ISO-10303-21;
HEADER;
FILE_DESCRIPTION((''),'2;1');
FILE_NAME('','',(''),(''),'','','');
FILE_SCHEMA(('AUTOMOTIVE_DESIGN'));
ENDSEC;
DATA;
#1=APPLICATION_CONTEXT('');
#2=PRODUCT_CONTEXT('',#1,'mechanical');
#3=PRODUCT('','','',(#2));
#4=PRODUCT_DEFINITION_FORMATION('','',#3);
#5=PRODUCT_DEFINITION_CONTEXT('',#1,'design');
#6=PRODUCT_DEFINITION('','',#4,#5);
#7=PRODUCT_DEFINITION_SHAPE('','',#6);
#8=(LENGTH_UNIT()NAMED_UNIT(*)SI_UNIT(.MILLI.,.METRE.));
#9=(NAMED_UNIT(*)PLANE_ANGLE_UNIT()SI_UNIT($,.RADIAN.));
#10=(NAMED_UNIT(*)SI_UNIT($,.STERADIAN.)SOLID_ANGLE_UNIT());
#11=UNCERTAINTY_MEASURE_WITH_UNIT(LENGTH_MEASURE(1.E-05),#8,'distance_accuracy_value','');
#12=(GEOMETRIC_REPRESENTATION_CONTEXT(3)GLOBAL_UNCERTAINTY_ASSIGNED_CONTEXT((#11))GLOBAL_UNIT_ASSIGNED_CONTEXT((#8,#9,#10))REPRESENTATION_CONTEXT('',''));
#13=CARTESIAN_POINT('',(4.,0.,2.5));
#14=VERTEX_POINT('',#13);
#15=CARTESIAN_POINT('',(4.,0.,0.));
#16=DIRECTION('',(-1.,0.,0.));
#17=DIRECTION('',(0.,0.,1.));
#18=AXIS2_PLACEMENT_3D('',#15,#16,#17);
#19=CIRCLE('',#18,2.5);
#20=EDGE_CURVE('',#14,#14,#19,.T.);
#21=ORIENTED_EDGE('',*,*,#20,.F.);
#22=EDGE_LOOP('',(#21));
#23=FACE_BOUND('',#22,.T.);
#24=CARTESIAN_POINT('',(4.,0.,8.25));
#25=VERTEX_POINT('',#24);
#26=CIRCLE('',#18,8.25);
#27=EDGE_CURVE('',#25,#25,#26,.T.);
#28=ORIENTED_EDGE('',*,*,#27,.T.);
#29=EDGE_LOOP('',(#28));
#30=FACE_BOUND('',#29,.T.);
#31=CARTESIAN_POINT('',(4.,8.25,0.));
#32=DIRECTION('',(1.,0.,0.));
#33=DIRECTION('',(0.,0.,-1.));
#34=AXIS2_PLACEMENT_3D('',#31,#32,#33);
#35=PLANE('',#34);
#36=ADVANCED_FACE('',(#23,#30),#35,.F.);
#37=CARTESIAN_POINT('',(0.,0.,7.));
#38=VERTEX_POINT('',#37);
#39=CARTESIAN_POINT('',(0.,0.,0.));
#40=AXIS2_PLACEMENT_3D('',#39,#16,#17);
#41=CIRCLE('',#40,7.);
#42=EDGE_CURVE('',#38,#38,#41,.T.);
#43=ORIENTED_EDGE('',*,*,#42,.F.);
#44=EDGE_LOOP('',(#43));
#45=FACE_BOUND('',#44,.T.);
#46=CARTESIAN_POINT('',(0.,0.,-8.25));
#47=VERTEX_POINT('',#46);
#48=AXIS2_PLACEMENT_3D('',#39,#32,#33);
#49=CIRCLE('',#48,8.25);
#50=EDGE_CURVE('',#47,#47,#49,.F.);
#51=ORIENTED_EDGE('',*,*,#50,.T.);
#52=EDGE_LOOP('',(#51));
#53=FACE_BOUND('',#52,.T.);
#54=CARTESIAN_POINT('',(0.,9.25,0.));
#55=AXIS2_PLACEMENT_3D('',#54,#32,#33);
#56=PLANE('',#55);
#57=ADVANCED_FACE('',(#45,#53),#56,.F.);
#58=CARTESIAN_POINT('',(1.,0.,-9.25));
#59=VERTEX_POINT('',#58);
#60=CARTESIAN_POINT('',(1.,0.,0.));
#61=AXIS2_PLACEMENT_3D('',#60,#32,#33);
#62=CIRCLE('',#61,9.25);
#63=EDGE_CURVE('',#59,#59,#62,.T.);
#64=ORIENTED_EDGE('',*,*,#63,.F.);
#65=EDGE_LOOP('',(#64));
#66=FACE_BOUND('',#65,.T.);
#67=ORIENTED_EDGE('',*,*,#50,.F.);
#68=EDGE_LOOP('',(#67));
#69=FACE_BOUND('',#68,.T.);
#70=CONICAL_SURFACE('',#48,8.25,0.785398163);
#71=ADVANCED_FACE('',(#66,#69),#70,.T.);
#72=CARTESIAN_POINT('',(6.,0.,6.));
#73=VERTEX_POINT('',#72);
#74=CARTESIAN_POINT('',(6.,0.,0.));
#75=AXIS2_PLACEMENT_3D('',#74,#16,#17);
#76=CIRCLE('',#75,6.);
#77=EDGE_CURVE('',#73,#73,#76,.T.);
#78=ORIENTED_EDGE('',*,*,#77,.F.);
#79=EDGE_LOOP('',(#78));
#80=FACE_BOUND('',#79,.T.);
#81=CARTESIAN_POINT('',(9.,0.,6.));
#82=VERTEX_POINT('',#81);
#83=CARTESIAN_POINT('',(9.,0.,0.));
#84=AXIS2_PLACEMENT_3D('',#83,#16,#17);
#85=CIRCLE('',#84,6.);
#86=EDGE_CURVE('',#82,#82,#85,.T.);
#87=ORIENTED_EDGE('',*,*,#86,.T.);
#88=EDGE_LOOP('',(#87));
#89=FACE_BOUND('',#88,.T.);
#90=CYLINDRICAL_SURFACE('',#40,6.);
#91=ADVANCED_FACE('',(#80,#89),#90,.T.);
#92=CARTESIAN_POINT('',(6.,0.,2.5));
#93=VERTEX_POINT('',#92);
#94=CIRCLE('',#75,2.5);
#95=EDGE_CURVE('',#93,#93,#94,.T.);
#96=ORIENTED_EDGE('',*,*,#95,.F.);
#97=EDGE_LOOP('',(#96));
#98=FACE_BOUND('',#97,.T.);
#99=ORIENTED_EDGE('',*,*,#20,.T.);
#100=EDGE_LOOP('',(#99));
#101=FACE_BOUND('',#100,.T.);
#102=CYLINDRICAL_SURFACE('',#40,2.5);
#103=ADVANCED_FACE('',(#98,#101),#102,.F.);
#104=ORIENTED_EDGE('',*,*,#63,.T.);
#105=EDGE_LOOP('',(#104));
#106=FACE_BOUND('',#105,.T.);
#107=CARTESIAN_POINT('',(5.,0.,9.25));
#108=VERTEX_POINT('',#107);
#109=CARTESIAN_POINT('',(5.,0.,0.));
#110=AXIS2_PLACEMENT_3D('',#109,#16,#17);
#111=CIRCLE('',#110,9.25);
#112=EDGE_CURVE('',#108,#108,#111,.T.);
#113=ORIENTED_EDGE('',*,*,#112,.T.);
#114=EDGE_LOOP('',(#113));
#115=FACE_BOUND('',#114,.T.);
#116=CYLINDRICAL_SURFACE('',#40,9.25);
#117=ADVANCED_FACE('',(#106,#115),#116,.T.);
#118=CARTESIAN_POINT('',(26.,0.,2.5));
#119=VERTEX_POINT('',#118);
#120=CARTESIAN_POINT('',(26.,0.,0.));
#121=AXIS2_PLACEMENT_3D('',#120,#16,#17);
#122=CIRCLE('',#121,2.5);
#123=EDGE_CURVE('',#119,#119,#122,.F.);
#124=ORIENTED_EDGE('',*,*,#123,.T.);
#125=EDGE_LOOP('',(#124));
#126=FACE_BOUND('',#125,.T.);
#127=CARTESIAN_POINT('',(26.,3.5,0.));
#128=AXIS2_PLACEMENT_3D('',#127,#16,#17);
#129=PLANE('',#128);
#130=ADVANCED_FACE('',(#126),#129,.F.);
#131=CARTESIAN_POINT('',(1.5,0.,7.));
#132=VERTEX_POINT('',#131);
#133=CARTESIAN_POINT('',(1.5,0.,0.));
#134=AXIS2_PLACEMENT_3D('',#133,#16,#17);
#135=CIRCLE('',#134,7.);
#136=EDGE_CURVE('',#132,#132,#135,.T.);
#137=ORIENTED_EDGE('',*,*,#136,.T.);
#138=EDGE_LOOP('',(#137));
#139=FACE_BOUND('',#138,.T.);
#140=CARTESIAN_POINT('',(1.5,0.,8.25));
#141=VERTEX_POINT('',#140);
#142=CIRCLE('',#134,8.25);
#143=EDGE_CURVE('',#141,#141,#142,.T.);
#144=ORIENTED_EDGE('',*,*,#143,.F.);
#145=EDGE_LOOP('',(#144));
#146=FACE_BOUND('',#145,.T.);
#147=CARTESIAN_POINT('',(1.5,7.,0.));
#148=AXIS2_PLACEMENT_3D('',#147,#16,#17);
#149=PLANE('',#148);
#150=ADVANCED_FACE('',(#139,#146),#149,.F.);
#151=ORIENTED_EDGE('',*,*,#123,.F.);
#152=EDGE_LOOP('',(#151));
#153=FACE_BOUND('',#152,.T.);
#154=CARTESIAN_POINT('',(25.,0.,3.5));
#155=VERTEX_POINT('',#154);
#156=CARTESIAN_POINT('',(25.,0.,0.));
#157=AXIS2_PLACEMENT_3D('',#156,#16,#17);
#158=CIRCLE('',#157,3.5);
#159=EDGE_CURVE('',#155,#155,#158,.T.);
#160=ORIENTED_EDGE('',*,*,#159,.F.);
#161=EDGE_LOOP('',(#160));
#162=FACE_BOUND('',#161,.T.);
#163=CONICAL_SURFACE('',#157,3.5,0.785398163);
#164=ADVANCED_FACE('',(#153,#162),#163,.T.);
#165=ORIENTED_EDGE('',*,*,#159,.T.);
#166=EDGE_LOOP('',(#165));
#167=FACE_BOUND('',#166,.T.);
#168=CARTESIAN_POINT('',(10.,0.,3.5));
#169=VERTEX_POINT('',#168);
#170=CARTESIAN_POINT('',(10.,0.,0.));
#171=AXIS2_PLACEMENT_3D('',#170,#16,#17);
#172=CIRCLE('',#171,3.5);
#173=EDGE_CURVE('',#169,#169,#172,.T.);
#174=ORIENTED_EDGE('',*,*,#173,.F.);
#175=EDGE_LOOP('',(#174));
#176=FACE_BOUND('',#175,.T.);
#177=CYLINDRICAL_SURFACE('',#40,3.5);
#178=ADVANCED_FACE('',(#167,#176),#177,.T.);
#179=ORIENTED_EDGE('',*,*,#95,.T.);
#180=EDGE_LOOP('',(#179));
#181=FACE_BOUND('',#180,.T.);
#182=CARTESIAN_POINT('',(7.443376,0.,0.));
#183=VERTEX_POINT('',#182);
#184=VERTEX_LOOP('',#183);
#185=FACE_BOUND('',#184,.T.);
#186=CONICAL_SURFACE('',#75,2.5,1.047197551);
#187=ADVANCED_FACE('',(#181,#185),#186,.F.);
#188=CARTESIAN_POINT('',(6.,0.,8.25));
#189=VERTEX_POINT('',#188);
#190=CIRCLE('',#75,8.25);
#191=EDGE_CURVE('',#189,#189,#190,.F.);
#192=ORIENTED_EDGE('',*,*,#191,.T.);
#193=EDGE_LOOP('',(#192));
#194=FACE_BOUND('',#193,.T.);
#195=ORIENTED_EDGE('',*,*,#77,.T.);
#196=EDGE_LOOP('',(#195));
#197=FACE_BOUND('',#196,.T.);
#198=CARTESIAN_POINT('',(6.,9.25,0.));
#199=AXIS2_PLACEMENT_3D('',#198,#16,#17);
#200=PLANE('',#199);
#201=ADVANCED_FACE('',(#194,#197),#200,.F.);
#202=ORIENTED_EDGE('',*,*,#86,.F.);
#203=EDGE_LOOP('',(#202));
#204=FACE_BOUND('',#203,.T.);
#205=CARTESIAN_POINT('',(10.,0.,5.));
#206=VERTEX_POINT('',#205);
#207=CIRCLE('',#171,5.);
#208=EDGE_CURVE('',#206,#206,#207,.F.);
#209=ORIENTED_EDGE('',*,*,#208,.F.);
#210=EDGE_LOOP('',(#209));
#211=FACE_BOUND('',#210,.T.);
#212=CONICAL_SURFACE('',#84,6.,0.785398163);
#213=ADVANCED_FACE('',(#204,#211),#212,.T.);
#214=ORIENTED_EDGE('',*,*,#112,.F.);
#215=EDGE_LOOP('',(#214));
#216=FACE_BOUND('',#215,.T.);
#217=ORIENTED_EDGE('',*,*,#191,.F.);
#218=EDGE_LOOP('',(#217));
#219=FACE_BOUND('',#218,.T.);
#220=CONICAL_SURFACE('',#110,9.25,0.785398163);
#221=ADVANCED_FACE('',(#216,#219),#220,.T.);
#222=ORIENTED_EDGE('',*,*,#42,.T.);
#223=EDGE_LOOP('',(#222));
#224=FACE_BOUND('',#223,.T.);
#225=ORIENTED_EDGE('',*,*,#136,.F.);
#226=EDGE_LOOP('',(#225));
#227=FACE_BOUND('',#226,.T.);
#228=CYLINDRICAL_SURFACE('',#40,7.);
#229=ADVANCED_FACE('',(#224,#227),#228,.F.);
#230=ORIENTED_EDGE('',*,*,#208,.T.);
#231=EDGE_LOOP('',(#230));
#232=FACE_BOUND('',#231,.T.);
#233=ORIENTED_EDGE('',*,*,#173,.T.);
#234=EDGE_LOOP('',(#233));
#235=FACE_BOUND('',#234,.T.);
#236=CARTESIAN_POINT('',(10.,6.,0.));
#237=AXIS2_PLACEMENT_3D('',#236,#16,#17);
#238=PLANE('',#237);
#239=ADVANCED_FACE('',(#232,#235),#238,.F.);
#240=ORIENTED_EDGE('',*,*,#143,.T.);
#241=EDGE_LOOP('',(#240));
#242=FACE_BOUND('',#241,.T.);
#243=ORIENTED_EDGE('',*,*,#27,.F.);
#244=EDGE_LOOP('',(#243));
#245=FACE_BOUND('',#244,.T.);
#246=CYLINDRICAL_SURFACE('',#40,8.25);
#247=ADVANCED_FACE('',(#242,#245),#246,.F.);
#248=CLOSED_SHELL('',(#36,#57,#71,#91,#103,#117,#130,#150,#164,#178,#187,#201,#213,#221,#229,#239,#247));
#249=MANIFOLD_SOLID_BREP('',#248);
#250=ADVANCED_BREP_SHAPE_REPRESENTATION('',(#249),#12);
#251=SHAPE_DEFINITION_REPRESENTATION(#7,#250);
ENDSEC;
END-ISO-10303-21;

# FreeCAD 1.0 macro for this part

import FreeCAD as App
import Part
import Sketcher
from FreeCAD import Vector
Q = App.Units.Quantity


def edges_at(feature, points):
    """Names of the edges that pass closest to the given points."""
    edges = feature.Shape.Edges
    near = lambda p: min(range(len(edges)), key=lambda i: edges[i].distToShape(Part.Vertex(*p))[0])
    return sorted({f"Edge{near(p) + 1}" for p in points})


def add_polygon(sketch, points):
    """Adds a closed chain of lines whose ends are joined by coincident constraints."""
    first, n = sketch.GeometryCount, len(points)
    for a, b in zip(points, points[1:] + points[:1]):
        sketch.addGeometry(Part.LineSegment(App.Vector(*a, 0), App.Vector(*b, 0)), False)
    for i in range(n):
        sketch.addConstraint(Sketcher.Constraint("Coincident", first + i, 2, first + (i + 1) % n, 1))

doc = App.newDocument("Part")
params = doc.addObject("Spreadsheet::Sheet", "Params")
for row, (alias, value) in enumerate([
    ("sketch1_width", "2 mm"),
    ("sketch1_width2", "16 mm"),
    ("sketch1_width3", "4 mm"),
    ("sketch1_width4", "6 mm"),
    ("sketch1_width5", "2.5 mm"),
    ("revolution_angle", "360 deg"),
    ("chamfer_size", "1 mm"),
], start=1):
    params.set(f"A{row}", alias)
    params.set(f"B{row}", "=" + value)
    params.setAlias(f"B{row}", alias)

body = doc.addObject("PartDesign::Body", "Body")

sketch1 = body.newObject("Sketcher::SketchObject", "Sketch")
sketch1.AttachmentSupport = (doc.getObject("XY_Plane"), [""])
sketch1.MapMode = "FlatFace"
add_polygon(sketch1, [(1.5, 8.25), (4, 8.25), (4, 2.5), (6, 2.5), (7.443376, 0), (26, 0), (26, 3.5), (10, 3.5), (10, 6), (6, 6), (6, 9.25), (0, 9.25), (0, 7), (1.5, 7)])
sketch1.addConstraint(Sketcher.Constraint("Horizontal", 0))
sketch1.addConstraint(Sketcher.Constraint("Vertical", 1))
sketch1.addConstraint(Sketcher.Constraint("Horizontal", 2))
sketch1.addConstraint(Sketcher.Constraint("Horizontal", 4))
sketch1.addConstraint(Sketcher.Constraint("Vertical", 5))
sketch1.addConstraint(Sketcher.Constraint("Horizontal", 6))
sketch1.addConstraint(Sketcher.Constraint("Vertical", 7))
sketch1.addConstraint(Sketcher.Constraint("Horizontal", 8))
sketch1.addConstraint(Sketcher.Constraint("Vertical", 9))
sketch1.addConstraint(Sketcher.Constraint("Horizontal", 10))
sketch1.addConstraint(Sketcher.Constraint("Vertical", 11))
sketch1.addConstraint(Sketcher.Constraint("Horizontal", 12))
sketch1.addConstraint(Sketcher.Constraint("Vertical", 13))
sketch1.addConstraint(Sketcher.Constraint("PointOnObject", 3, 2, -1))
sketch1.addConstraint(Sketcher.Constraint("PointOnObject", 10, 2, -2))
sketch1.addConstraint(Sketcher.Constraint("Vertical", 2, 2, 8, 2))
sketch1.addConstraint(Sketcher.Constraint("Equal", 0, 7))
sketch1.addConstraint(Sketcher.Constraint("DistanceX", 2, 1, 2, 2, 2.0))
sketch1.addConstraint(Sketcher.Constraint("DistanceX", 6, 2, 6, 1, 16.0))
sketch1.addConstraint(Sketcher.Constraint("DistanceX", 8, 2, 8, 1, 4.0))
sketch1.addConstraint(Sketcher.Constraint("DistanceX", 10, 2, 10, 1, 6.0))
sketch1.addConstraint(Sketcher.Constraint("Angle", 3, Q("-60 deg")))
sketch1.addConstraint(Sketcher.Constraint("DistanceX", 0, 1, 0, 2, 2.5))
sketch1.addConstraint(Sketcher.Constraint("DistanceY", 5, 1, 5, 2, 3.5))
sketch1.addConstraint(Sketcher.Constraint("DistanceY", -1, 1, 11, 2, 7.0))
sketch1.addConstraint(Sketcher.Constraint("DistanceY", 2, 2, 5, 2, 1.0))
sketch1.addConstraint(Sketcher.Constraint("DistanceY", 0, 2, 9, 2, 1.0))
sketch1.addConstraint(Sketcher.Constraint("DistanceY", 1, 2, 1, 1, 5.75))
sketch1.setExpression("Constraints[31]", "Params.sketch1_width")
sketch1.setExpression("Constraints[32]", "Params.sketch1_width2")
sketch1.setExpression("Constraints[33]", "Params.sketch1_width3")
sketch1.setExpression("Constraints[34]", "Params.sketch1_width4")
sketch1.setExpression("Constraints[36]", "Params.sketch1_width5")
revolution = body.newObject("PartDesign::Revolution", "Revolution")
revolution.Profile = sketch1
revolution.ReferenceAxis = (sketch1, ["H_Axis"])
revolution.setExpression("Angle", "Params.revolution_angle")
doc.recompute()

chamfer = body.newObject("PartDesign::Chamfer", "Chamfer")
chamfer.Base = (revolution, edges_at(revolution, [
    (0, 0, -9.25),
    (6, 0, -9.25),
    (10, 0, -6),
    (26, 0, -3.5),
]))
chamfer.setExpression("Size", "Params.chamfer_size")

doc.recompute()
